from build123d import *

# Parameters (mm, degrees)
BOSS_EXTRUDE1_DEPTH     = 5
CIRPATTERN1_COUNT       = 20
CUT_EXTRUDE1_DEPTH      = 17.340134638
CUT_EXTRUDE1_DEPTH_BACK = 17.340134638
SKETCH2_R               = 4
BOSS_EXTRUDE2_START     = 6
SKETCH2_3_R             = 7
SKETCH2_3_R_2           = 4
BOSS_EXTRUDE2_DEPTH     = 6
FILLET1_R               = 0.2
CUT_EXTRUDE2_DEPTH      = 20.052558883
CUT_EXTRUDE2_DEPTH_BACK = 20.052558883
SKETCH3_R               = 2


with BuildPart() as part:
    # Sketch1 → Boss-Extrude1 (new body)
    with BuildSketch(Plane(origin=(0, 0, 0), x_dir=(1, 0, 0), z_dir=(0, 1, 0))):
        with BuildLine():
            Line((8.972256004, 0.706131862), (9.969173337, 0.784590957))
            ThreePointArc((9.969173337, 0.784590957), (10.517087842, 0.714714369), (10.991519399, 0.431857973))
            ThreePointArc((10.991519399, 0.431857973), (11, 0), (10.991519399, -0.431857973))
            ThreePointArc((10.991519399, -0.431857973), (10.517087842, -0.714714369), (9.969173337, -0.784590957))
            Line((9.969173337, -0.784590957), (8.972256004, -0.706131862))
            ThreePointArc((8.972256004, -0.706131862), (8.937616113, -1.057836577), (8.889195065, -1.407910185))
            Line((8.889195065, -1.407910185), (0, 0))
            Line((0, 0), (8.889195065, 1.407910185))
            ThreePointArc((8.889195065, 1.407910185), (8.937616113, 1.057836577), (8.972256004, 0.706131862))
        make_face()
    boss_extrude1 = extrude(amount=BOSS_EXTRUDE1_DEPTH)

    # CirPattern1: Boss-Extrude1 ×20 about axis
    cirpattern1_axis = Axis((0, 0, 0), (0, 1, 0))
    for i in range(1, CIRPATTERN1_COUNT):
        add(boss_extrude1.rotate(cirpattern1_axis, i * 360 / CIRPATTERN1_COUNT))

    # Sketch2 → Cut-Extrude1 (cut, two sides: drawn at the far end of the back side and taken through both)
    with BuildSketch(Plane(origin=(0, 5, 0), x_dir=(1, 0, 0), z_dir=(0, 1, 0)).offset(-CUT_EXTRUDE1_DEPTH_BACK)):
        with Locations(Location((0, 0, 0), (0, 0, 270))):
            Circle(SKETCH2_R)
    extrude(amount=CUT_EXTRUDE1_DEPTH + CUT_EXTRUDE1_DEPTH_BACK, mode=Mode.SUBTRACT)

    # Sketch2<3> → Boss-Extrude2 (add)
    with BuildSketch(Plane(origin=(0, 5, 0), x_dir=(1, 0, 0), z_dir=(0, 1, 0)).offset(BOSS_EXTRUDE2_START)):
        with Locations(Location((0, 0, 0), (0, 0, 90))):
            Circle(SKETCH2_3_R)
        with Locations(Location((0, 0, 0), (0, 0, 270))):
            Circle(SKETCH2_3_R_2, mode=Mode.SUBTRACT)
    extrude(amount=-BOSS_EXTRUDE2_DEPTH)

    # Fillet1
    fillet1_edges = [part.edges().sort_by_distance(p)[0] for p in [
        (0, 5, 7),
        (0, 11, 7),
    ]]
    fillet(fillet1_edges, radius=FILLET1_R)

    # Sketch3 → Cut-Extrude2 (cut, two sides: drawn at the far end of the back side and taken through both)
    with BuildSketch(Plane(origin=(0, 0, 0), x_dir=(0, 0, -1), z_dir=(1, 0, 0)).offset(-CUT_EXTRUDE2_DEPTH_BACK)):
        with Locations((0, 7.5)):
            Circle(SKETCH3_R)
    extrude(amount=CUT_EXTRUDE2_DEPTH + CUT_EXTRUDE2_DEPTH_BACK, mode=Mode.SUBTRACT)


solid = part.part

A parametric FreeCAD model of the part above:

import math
import FreeCAD as App
import Part
import Sketcher
Q = App.Units.Quantity


def edges_at(feature, points):
    """Names of the edges that pass closest to the given points."""
    edges = feature.Shape.Edges
    near = lambda p: min(range(len(edges)), key=lambda i: edges[i].distToShape(Part.Vertex(*p))[0])
    return sorted({f"Edge{near(p) + 1}" for p in points})

doc = App.newDocument("Part")
body = doc.addObject("PartDesign::Body", "Body")

# Sketch on XZ plane
sketch1 = doc.addObject("Sketcher::SketchObject", "Sketch")
body.addObject(sketch1)
sketch1.AttachmentSupport = (doc.XZ_Plane, [""])
sketch1.MapMode = "FlatFace"
sketch1.addGeometry([
    Part.LineSegment(App.Vector(10, -0.8, 0), App.Vector(9, -0.7, 0)),  # 0
    Part.ArcOfCircle(Part.Circle(App.Vector(0, 0, 0), App.Vector(0, 0, 1), 9), math.radians(-9), math.radians(-4.5)),  # 1
    Part.LineSegment(App.Vector(8.9, -1.4, 0), App.Vector(0, 0, 0)),  # 2
    Part.LineSegment(App.Vector(0, 0, 0), App.Vector(8.9, 1.4, 0)),  # 3
    Part.ArcOfCircle(Part.Circle(App.Vector(0, 0, 0), App.Vector(0, 0, 1), 9), math.radians(4.5), math.radians(9)),  # 4
    Part.LineSegment(App.Vector(9, 0.7, 0), App.Vector(10, 0.8, 0)),  # 5
    Part.ArcOfCircle(Part.Circle(App.Vector(10.1, -0.6, 0), App.Vector(0, 0, 1), 1.4), math.radians(47), math.radians(94)),  # 6
    Part.ArcOfCircle(Part.Circle(App.Vector(0, 0, 0), App.Vector(0, 0, 1), 11), math.radians(-2.25), math.radians(2.25)),  # 7
    Part.ArcOfCircle(Part.Circle(App.Vector(10.1, 0.6, 0), App.Vector(0, 0, 1), 1.4), math.radians(-94), math.radians(-47)),  # 8
], False)
sketch1.addConstraint([
    Sketcher.Constraint("Coincident", 0, 2, 1, 2),
    Sketcher.Constraint("Coincident", 1, 1, 2, 1),
    Sketcher.Constraint("Coincident", 2, 2, 3, 1),
    Sketcher.Constraint("Coincident", 3, 2, 4, 2),
    Sketcher.Constraint("Coincident", 4, 1, 5, 1),
    Sketcher.Constraint("Tangent", 5, 2, 6, 2),
    Sketcher.Constraint("Coincident", 6, 1, 7, 2),
    Sketcher.Constraint("Coincident", 7, 1, 8, 2),
    Sketcher.Constraint("Tangent", 8, 1, 0, 1),
    Sketcher.Constraint("Coincident", 1, 3, -1, 1),
    Sketcher.Constraint("Coincident", 4, 3, -1, 1),
    Sketcher.Constraint("Coincident", 7, 3, -1, 1),
    Sketcher.Constraint("Coincident", 2, 2, -1, 1),
    Sketcher.Constraint("Equal", 1, 4),
    Sketcher.Constraint("Equal", 6, 8),
    Sketcher.Constraint("Symmetric", 6, 3, 8, 3, -1),
    Sketcher.Constraint("Vertical", 1, 1, 3, 2),
    Sketcher.Constraint("Vertical", 0, 2, 4, 1),
    Sketcher.Constraint("Radius", 1, 9.0),
    Sketcher.Constraint("Radius", 7, 11.0),
    Sketcher.Constraint("Angle", 2, Q("171 deg")),
    Sketcher.Constraint("Distance", 0, 1.0),
    Sketcher.Constraint("Angle", 0, Q("175.5 deg")),
    Sketcher.Constraint("Radius", 6, 1.354163),
    Sketcher.Constraint("DistanceX", 8, 3, 6, 1, 0.9161),
])
pad1 = doc.addObject("PartDesign::Pad", "Pad")
body.addObject(pad1)
pad1.Profile = sketch1
pad1.Length = 5
pad1.Reversed = True
doc.recompute()

polarpattern = doc.addObject("PartDesign::PolarPattern", "PolarPattern")
body.addObject(polarpattern)
polarpattern.Originals = [pad1]
polarpattern.Axis = (doc.Y_Axis, [""])
polarpattern.Angle = 360
polarpattern.Occurrences = 20
body.Tip = polarpattern

# Sketch on XZ plane
sketch2 = doc.addObject("Sketcher::SketchObject", "Sketch001")
body.addObject(sketch2)
sketch2.AttachmentSupport = (doc.XZ_Plane, [""])
sketch2.MapMode = "FlatFace"
sketch2.AttachmentOffset = App.Placement(App.Vector(0, 0, -5), App.Rotation())
sketch2.addGeometry(Part.Circle(App.Vector(0, 0, 0), App.Vector(0, 0, 1), 4), False)
sketch2.addConstraint([
    Sketcher.Constraint("Coincident", 0, 3, -1, 1),
    Sketcher.Constraint("Diameter", 0, 8.0),
])
pocket1 = doc.addObject("PartDesign::Pocket", "Pocket")
body.addObject(pocket1)
pocket1.Profile = sketch2
pocket1.Type = "ThroughAll"
pocket1.Midplane = True

# Sketch on XZ plane
sketch3 = doc.addObject("Sketcher::SketchObject", "Sketch002")
body.addObject(sketch3)
sketch3.AttachmentSupport = (doc.XZ_Plane, [""])
sketch3.MapMode = "FlatFace"
sketch3.AttachmentOffset = App.Placement(App.Vector(0, 0, -11), App.Rotation())
sketch3.addGeometry([
    Part.Circle(App.Vector(0, 0, 0), App.Vector(0, 0, 1), 7),
    Part.Circle(App.Vector(0, 0, 0), App.Vector(0, 0, 1), 4),
], False)
sketch3.addConstraint([
    Sketcher.Constraint("Coincident", 0, 3, -1, 1),
    Sketcher.Constraint("Coincident", 1, 3, -1, 1),
    Sketcher.Constraint("Diameter", 0, 14.0),
    Sketcher.Constraint("Diameter", 1, 8.0),
])
pad2 = doc.addObject("PartDesign::Pad", "Pad001")
body.addObject(pad2)
pad2.Profile = sketch3
pad2.Length = 6
doc.recompute()

fillet = doc.addObject("PartDesign::Fillet", "Fillet")
body.addObject(fillet)
fillet.Base = (pad2, edges_at(pad2, [(0, 5, 7), (0, 11, 7)]))
fillet.Radius = 0.2

# Sketch on YZ plane
sketch4 = doc.addObject("Sketcher::SketchObject", "Sketch003")
body.addObject(sketch4)
sketch4.AttachmentSupport = (doc.YZ_Plane, [""])
sketch4.MapMode = "FlatFace"
sketch4.addGeometry(Part.Circle(App.Vector(7.5, 0, 0), App.Vector(0, 0, 1), 2), False)
sketch4.addConstraint([
    Sketcher.Constraint("PointOnObject", 0, 3, -1),
    Sketcher.Constraint("Diameter", 0, 4.0),
    Sketcher.Constraint("DistanceX", -1, 1, 0, 3, 7.5),
])
pocket2 = doc.addObject("PartDesign::Pocket", "Pocket001")
body.addObject(pocket2)
pocket2.Profile = sketch4
pocket2.Type = "ThroughAll"
pocket2.Midplane = True

doc.recompute()
